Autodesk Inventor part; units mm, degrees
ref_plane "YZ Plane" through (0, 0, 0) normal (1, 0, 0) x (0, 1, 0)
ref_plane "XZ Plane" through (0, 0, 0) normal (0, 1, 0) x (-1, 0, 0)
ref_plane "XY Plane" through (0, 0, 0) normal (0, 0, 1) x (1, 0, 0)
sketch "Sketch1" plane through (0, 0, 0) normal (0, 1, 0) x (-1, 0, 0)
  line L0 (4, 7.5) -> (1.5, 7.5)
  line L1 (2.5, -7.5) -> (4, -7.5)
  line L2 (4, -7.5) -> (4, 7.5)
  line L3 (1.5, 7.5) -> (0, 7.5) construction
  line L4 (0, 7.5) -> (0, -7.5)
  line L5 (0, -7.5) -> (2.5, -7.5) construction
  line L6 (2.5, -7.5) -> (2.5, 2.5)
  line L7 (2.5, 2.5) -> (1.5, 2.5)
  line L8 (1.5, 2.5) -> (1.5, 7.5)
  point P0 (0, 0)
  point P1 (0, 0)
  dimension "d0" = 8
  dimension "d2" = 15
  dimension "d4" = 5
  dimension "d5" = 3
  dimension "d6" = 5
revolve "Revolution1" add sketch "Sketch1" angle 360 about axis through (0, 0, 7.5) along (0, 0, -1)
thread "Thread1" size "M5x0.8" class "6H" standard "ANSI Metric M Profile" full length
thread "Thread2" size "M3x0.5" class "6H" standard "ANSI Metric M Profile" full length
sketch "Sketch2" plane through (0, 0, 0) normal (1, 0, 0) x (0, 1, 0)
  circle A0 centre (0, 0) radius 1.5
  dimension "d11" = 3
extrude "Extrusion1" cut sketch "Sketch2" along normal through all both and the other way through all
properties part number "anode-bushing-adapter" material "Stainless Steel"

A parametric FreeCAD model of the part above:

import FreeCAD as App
import Part
import Sketcher

V = App.Vector


def add_polygon(sketch, points):
    """Adds a closed chain of lines whose ends are joined by coincident constraints."""
    first, n = sketch.GeometryCount, len(points)
    for a, b in zip(points, points[1:] + points[:1]):
        sketch.addGeometry(Part.LineSegment(App.Vector(*a, 0), App.Vector(*b, 0)), False)
    for i in range(n):
        sketch.addConstraint(Sketcher.Constraint("Coincident", first + i, 2, first + (i + 1) % n, 1))

doc = App.newDocument("Part")
body = doc.addObject("PartDesign::Body", "Body")

sketch1 = doc.addObject("Sketcher::SketchObject", "Sketch")
body.addObject(sketch1)
sketch1.AttachmentSupport = (doc.XZ_Plane, [""])
sketch1.MapMode = "FlatFace"
add_polygon(sketch1, [(-4, -7.5), (-4, 7.5), (-1.5, 7.5), (-1.5, 2.5), (-2.5, 2.5), (-2.5, -7.5)])
sketch1.addConstraint(Sketcher.Constraint("Vertical", 0))
sketch1.addConstraint(Sketcher.Constraint("Horizontal", 1))
sketch1.addConstraint(Sketcher.Constraint("Vertical", 2))
sketch1.addConstraint(Sketcher.Constraint("Horizontal", 3))
sketch1.addConstraint(Sketcher.Constraint("Vertical", 4))
sketch1.addConstraint(Sketcher.Constraint("Horizontal", 5))
sketch1.addConstraint(Sketcher.Constraint("DistanceY", 0, 1, 0, 2, 15.0))
sketch1.addConstraint(Sketcher.Constraint("DistanceY", 2, 2, 2, 1, 5.0))
sketch1.addConstraint(Sketcher.Constraint("DistanceX", 3, 2, 3, 1, 1.0))
sketch1.addConstraint(Sketcher.Constraint("DistanceX", 1, 1, 1, 2, 2.5))
sketch1.addConstraint(Sketcher.Constraint("DistanceX", 0, 2, -1, 1, 4.0))
sketch1.addConstraint(Sketcher.Constraint("DistanceY", -1, 1, 0, 2, 7.5))
revolution = doc.addObject("PartDesign::Revolution", "Revolution")
body.addObject(revolution)
revolution.Profile = sketch1
revolution.ReferenceAxis = (sketch1, ["V_Axis"])
revolution.Angle = 360

sketch2 = doc.addObject("Sketcher::SketchObject", "Sketch001")
body.addObject(sketch2)
sketch2.AttachmentSupport = (doc.YZ_Plane, [""])
sketch2.MapMode = "FlatFace"
sketch2.addGeometry(Part.Circle(V(0, 0, 0), V(0, 0, 1), 1.5), False)
sketch2.addConstraint(Sketcher.Constraint("Coincident", 0, 3, -1, 1))
sketch2.addConstraint(Sketcher.Constraint("Diameter", 0, 3.0))
pocket1 = doc.addObject("PartDesign::Pocket", "Pocket")
body.addObject(pocket1)
pocket1.Profile = sketch2
pocket1.Type = "ThroughAll"
pocket1.Midplane = True

doc.recompute()
